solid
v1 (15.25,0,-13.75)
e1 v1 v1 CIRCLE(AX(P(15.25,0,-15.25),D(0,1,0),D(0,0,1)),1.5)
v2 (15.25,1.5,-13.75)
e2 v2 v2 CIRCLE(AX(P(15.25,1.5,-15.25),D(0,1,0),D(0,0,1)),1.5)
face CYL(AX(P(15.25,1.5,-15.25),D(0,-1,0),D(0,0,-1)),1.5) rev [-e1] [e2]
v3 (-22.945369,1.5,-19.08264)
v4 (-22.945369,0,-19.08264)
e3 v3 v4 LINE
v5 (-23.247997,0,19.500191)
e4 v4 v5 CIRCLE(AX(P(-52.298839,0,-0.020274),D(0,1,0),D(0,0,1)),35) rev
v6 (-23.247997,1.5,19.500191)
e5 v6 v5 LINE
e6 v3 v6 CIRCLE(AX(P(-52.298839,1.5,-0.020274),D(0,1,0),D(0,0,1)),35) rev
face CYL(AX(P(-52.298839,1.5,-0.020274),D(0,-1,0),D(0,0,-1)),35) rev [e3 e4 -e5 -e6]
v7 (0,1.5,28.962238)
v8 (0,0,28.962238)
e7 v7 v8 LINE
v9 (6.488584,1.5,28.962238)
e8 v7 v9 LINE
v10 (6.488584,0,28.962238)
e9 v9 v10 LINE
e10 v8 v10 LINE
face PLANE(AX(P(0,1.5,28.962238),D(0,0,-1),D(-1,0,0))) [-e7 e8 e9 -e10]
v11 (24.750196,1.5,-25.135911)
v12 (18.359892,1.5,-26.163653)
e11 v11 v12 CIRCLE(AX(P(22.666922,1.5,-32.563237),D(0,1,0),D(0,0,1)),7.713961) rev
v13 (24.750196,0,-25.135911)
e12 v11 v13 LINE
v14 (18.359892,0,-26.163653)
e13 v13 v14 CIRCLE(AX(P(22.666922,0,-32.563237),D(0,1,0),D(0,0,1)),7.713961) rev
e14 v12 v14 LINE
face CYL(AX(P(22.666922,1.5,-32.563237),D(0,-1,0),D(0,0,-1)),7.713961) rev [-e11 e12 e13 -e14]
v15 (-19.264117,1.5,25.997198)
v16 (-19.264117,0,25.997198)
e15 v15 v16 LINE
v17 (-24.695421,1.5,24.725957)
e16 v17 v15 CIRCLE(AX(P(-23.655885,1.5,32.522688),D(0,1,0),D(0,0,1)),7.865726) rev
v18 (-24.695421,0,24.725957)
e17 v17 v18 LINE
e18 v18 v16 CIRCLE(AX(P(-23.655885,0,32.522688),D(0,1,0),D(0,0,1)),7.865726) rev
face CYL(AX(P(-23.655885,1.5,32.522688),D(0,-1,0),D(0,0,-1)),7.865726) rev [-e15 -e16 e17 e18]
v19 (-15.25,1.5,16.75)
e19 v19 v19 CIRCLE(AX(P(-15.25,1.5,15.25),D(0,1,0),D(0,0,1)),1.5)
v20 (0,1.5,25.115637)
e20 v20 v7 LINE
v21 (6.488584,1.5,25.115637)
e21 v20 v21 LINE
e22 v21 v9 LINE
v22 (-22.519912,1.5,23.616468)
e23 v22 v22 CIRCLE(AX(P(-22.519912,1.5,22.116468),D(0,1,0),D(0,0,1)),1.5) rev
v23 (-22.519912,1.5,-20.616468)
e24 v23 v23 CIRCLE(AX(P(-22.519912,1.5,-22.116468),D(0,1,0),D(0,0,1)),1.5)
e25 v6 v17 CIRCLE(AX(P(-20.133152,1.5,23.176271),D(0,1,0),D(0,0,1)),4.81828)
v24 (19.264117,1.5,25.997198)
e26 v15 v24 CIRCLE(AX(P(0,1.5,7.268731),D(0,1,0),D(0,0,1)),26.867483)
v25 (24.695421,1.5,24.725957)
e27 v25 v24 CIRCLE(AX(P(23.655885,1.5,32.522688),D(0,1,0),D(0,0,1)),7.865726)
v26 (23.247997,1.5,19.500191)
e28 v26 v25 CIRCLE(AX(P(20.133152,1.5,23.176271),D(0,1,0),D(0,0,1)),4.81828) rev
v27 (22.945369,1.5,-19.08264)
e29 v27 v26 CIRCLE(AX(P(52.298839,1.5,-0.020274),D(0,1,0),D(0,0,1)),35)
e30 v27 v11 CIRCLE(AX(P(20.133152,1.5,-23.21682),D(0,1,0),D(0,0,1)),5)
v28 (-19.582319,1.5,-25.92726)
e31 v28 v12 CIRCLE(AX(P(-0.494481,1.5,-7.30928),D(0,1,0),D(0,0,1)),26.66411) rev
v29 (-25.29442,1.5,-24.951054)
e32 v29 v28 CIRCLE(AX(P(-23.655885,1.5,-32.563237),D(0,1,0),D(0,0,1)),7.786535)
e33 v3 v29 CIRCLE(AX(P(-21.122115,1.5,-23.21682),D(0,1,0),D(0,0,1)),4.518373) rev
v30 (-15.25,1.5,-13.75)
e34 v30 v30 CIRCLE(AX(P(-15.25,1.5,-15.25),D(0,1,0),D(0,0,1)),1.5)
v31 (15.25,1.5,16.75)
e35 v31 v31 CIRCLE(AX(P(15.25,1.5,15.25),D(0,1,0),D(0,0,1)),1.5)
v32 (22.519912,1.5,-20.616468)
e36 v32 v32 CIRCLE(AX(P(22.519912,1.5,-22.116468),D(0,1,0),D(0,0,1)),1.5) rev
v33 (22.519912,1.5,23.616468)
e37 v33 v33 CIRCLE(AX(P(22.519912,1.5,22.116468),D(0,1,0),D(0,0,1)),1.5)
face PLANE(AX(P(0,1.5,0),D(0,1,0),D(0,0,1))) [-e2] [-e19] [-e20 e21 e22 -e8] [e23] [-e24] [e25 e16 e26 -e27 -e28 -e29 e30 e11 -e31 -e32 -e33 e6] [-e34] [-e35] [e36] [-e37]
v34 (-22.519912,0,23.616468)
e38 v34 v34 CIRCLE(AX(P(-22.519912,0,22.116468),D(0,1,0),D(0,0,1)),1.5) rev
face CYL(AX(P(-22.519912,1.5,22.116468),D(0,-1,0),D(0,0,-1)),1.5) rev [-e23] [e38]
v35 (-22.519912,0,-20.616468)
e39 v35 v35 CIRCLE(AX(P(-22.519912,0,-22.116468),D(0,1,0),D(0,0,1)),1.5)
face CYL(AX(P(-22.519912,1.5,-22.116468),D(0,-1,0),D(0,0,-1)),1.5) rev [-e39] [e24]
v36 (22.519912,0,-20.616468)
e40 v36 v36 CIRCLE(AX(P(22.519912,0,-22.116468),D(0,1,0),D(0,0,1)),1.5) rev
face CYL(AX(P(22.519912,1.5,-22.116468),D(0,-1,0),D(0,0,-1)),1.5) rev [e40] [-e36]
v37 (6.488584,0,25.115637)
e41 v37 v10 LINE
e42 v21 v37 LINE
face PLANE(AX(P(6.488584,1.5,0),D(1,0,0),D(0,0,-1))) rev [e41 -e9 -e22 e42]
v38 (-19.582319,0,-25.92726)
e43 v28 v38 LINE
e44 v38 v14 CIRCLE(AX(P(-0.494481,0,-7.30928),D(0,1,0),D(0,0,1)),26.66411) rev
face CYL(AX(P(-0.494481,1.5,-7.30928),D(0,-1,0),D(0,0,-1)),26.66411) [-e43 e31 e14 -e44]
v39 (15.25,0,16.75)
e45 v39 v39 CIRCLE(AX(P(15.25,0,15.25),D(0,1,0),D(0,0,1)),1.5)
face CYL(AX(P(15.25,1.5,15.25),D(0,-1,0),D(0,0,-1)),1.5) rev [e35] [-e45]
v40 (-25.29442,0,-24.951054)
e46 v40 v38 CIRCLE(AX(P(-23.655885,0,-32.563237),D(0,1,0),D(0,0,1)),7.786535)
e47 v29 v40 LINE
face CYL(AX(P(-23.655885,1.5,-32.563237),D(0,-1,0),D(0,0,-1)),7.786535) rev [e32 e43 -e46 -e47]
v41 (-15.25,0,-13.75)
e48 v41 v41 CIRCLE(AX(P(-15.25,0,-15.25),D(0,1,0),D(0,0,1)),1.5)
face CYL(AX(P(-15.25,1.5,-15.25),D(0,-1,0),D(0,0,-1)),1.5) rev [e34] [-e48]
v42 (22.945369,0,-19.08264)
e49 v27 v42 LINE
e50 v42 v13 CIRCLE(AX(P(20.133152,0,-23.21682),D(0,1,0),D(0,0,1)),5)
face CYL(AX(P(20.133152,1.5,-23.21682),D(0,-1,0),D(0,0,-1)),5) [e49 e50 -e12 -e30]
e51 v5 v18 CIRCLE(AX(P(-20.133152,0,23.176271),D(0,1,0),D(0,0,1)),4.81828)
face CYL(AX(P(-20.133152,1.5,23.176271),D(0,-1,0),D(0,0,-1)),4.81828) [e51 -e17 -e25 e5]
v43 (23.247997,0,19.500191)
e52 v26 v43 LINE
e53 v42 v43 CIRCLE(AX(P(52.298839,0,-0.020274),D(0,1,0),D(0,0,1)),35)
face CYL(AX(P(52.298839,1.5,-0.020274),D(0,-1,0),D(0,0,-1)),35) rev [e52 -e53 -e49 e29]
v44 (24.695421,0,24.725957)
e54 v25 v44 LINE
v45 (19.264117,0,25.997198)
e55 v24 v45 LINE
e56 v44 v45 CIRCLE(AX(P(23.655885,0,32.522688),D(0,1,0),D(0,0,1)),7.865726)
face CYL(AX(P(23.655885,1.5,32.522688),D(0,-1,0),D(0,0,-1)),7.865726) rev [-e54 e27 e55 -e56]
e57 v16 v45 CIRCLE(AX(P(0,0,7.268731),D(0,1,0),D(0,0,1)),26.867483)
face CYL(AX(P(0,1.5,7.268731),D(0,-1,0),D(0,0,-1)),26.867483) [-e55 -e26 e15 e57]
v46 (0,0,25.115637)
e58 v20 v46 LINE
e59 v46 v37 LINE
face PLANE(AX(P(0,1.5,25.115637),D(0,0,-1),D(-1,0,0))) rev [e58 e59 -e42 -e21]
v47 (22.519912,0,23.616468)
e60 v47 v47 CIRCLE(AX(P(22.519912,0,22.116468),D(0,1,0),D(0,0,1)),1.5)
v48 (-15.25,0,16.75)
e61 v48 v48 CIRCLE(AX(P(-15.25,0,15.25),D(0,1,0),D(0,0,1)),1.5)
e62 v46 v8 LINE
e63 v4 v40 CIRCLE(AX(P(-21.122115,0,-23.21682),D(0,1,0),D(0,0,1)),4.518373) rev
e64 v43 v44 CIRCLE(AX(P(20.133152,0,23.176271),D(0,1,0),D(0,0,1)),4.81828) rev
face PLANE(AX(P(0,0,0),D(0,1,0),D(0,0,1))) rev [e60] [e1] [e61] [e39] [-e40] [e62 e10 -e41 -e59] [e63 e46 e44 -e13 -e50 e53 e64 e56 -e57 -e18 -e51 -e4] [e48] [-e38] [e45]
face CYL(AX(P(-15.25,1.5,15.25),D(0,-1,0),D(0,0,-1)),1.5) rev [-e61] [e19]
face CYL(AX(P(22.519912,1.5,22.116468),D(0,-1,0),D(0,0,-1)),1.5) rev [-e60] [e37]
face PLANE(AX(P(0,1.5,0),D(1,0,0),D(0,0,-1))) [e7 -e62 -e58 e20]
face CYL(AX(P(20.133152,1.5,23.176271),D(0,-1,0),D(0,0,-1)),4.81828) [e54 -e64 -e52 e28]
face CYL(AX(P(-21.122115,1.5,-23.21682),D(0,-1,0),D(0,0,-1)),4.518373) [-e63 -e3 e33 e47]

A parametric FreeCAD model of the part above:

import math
import FreeCAD as App
import Part
import Sketcher
Q = App.Units.Quantity

doc = App.newDocument("Part")
body = doc.addObject("PartDesign::Body", "Body")

# Sketch on XZ plane
sketch1 = body.newObject("Sketcher::SketchObject", "Sketch")
sketch1.AttachmentSupport = (doc.getObject("XZ_Plane"), [""])
sketch1.MapMode = "FlatFace"
sketch1.addGeometry([
    Part.ArcOfCircle(Part.Circle(App.Vector(20.1, 23.2, 0), App.Vector(0, 0, 1), 4.8), math.radians(-50), math.radians(19)),  # 0
    Part.ArcOfCircle(Part.Circle(App.Vector(52.3, 0, 0), App.Vector(0, 0, 1), 35), math.radians(146), math.radians(213)),  # 1
    Part.ArcOfCircle(Part.Circle(App.Vector(20.1, -23.2, 0), App.Vector(0, 0, 1), 5), math.radians(-23), math.radians(56)),  # 2
    Part.ArcOfCircle(Part.Circle(App.Vector(22.7, -32.6, 0), App.Vector(0, 0, 1), 7.7), math.radians(74), math.radians(124)),  # 3
    Part.ArcOfCircle(Part.Circle(App.Vector(-0.5, -7.3, 0), App.Vector(0, 0, 1), 26.7), math.radians(-136), math.radians(-45)),  # 4
    Part.ArcOfCircle(Part.Circle(App.Vector(-23.7, -32.6, 0), App.Vector(0, 0, 1), 7.8), math.radians(58), math.radians(102)),  # 5
    Part.ArcOfCircle(Part.Circle(App.Vector(-21.1, -23.2, 0), App.Vector(0, 0, 1), 4.5), math.radians(114), math.radians(203)),  # 6
    Part.ArcOfCircle(Part.Circle(App.Vector(-52.3, 0, 0), App.Vector(0, 0, 1), 35), math.radians(-33), math.radians(34)),  # 7
    Part.ArcOfCircle(Part.Circle(App.Vector(-20.1, 23.2, 0), App.Vector(0, 0, 1), 4.8), math.radians(161), math.radians(230)),  # 8
    Part.ArcOfCircle(Part.Circle(App.Vector(-23.7, 32.5, 0), App.Vector(0, 0, 1), 7.9), math.radians(-98), math.radians(-56)),  # 9
    Part.ArcOfCircle(Part.Circle(App.Vector(0, 7.3, 0), App.Vector(0, 0, 1), 26.9), math.radians(44), math.radians(136)),  # 10
    Part.ArcOfCircle(Part.Circle(App.Vector(23.7, 32.5, 0), App.Vector(0, 0, 1), 7.9), math.radians(-124), math.radians(-82)),  # 11
    Part.Circle(App.Vector(22.5, 22.1, 0), App.Vector(0, 0, 1), 1.5),  # 12
    Part.LineSegment(App.Vector(0, 29, 0), App.Vector(0, 25.1, 0)),  # 13
    Part.LineSegment(App.Vector(0, 25.1, 0), App.Vector(6.5, 25.1, 0)),  # 14
    Part.LineSegment(App.Vector(6.5, 25.1, 0), App.Vector(6.5, 29, 0)),  # 15
    Part.LineSegment(App.Vector(6.5, 29, 0), App.Vector(0, 29, 0)),  # 16
    Part.Circle(App.Vector(15.2, 15.2, 0), App.Vector(0, 0, 1), 1.5),  # 17
    Part.Circle(App.Vector(-22.5, 22.1, 0), App.Vector(0, 0, 1), 1.5),  # 18
    Part.Circle(App.Vector(-15.2, 15.2, 0), App.Vector(0, 0, 1), 1.5),  # 19
    Part.Circle(App.Vector(15.2, -15.2, 0), App.Vector(0, 0, 1), 1.5),  # 20
    Part.Circle(App.Vector(22.5, -22.1, 0), App.Vector(0, 0, 1), 1.5),  # 21
    Part.Circle(App.Vector(-15.2, -15.2, 0), App.Vector(0, 0, 1), 1.5),  # 22
    Part.Circle(App.Vector(-22.5, -22.1, 0), App.Vector(0, 0, 1), 1.5),  # 23
], False)
sketch1.addConstraint([
    Sketcher.Constraint("Coincident", 0, 1, 1, 1),
    Sketcher.Constraint("Coincident", 1, 2, 2, 2),
    Sketcher.Constraint("Coincident", 2, 1, 3, 1),
    Sketcher.Constraint("Coincident", 3, 2, 4, 2),
    Sketcher.Constraint("Coincident", 4, 1, 5, 1),
    Sketcher.Constraint("Coincident", 5, 2, 6, 2),
    Sketcher.Constraint("Coincident", 6, 1, 7, 1),
    Sketcher.Constraint("Coincident", 7, 2, 8, 2),
    Sketcher.Constraint("Coincident", 8, 1, 9, 1),
    Sketcher.Constraint("Coincident", 9, 2, 10, 2),
    Sketcher.Constraint("Coincident", 10, 1, 11, 1),
    Sketcher.Constraint("Coincident", 11, 2, 0, 2),
    Sketcher.Constraint("Coincident", 13, 2, 14, 1),
    Sketcher.Constraint("Coincident", 14, 2, 15, 1),
    Sketcher.Constraint("Coincident", 15, 2, 16, 1),
    Sketcher.Constraint("Coincident", 16, 2, 13, 1),
    Sketcher.Constraint("Vertical", 13),
    Sketcher.Constraint("Horizontal", 14),
    Sketcher.Constraint("Vertical", 15),
    Sketcher.Constraint("Horizontal", 16),
    Sketcher.Constraint("Equal", 1, 7),
    Sketcher.Constraint("Equal", 0, 8),
    Sketcher.Constraint("Equal", 9, 11),
    Sketcher.Constraint("Equal", 12, 17),
    Sketcher.Constraint("Equal", 17, 18),
    Sketcher.Constraint("Equal", 18, 19),
    Sketcher.Constraint("Equal", 19, 20),
    Sketcher.Constraint("Equal", 20, 21),
    Sketcher.Constraint("Equal", 21, 22),
    Sketcher.Constraint("Equal", 22, 23),
    Sketcher.Constraint("Symmetric", 19, 3, 20, 3, -1, 1),
    Sketcher.Constraint("Symmetric", 18, 3, 21, 3, -1, 1),
    Sketcher.Constraint("Symmetric", 17, 3, 22, 3, -1, 1),
    Sketcher.Constraint("Symmetric", 12, 3, 23, 3, -1, 1),
    Sketcher.Constraint("Symmetric", 1, 3, 7, 3, -2),
    Sketcher.Constraint("Symmetric", 0, 3, 8, 3, -2),
    Sketcher.Constraint("Symmetric", 9, 3, 11, 3, -2),
    Sketcher.Constraint("Symmetric", 12, 3, 18, 3, -2),
    Sketcher.Constraint("Symmetric", 17, 3, 19, 3, -2),
    Sketcher.Constraint("PointOnObject", 10, 3, -2),
    Sketcher.Constraint("PointOnObject", 13, 2, -2),
    Sketcher.Constraint("Horizontal", 3, 3, 5, 3),
    Sketcher.Constraint("Horizontal", 2, 3, 6, 3),
    Sketcher.Constraint("Horizontal", 1, 2, 6, 1),
    Sketcher.Constraint("Vertical", 0, 3, 2, 3),
    Sketcher.Constraint("Vertical", 5, 3, 9, 3),
    Sketcher.Constraint("Diameter", 12, Q("3 mm")),
    Sketcher.Constraint("Radius", 1, Q("35 mm")),
    Sketcher.Constraint("Radius", 2, Q("5 mm")),
    Sketcher.Constraint("DistanceY", 20, 3, 17, 3, Q("30.5 mm")),
    Sketcher.Constraint("DistanceX", -1, 1, 17, 3, Q("15.25 mm")),
    Sketcher.Constraint("Radius", 0, Q("4.81828 mm")),
    Sketcher.Constraint("Radius", 3, Q("7.713961 mm")),
    Sketcher.Constraint("Radius", 4, Q("26.66411 mm")),
    Sketcher.Constraint("DistanceY", 13, 2, 13, 1, Q("3.846601 mm")),
    Sketcher.Constraint("Radius", 5, Q("7.786535 mm")),
    Sketcher.Constraint("Radius", 6, Q("4.518373 mm")),
    Sketcher.Constraint("Radius", 9, Q("7.865726 mm")),
    Sketcher.Constraint("Radius", 10, Q("26.867483 mm")),
    Sketcher.Constraint("DistanceY", 21, 3, 10, 3, Q("29.3852 mm")),
    Sketcher.Constraint("DistanceX", 5, 2, 4, 1, Q("5.7121 mm")),
    Sketcher.Constraint("DistanceX", 14, 1, 14, 2, Q("6.488584 mm")),
    Sketcher.Constraint("DistanceY", -1, 1, 0, 3, Q("23.176271 mm")),
    Sketcher.Constraint("DistanceX", -1, 1, 1, 3, Q("52.298839 mm")),
    Sketcher.Constraint("DistanceY", 2, 3, -1, 1, Q("23.21682 mm")),
    Sketcher.Constraint("DistanceX", 4, 3, -1, 1, Q("0.494481 mm")),
    Sketcher.Constraint("DistanceY", 4, 3, -1, 1, Q("7.30928 mm")),
    Sketcher.Constraint("DistanceY", -1, 1, 9, 3, Q("32.522688 mm")),
    Sketcher.Constraint("DistanceY", -1, 1, 10, 3, Q("7.268731 mm")),
    Sketcher.Constraint("DistanceX", -1, 1, 12, 3, Q("22.519912 mm")),
    Sketcher.Constraint("DistanceY", -1, 1, 0, 1, Q("19.500191 mm")),
    Sketcher.Constraint("DistanceX", -1, 1, 1, 2, Q("22.945369 mm")),
    Sketcher.Constraint("DistanceY", 2, 1, -1, 1, Q("25.135911 mm")),
    Sketcher.Constraint("DistanceX", -1, 1, 3, 2, Q("18.359892 mm")),
    Sketcher.Constraint("DistanceY", -1, 1, 15, 2, Q("28.962238 mm")),
])
pad1 = body.newObject("PartDesign::Pad", "Pad")
pad1.Profile = sketch1
pad1.Length = 1.5
pad1.Reversed = True

doc.recompute()
